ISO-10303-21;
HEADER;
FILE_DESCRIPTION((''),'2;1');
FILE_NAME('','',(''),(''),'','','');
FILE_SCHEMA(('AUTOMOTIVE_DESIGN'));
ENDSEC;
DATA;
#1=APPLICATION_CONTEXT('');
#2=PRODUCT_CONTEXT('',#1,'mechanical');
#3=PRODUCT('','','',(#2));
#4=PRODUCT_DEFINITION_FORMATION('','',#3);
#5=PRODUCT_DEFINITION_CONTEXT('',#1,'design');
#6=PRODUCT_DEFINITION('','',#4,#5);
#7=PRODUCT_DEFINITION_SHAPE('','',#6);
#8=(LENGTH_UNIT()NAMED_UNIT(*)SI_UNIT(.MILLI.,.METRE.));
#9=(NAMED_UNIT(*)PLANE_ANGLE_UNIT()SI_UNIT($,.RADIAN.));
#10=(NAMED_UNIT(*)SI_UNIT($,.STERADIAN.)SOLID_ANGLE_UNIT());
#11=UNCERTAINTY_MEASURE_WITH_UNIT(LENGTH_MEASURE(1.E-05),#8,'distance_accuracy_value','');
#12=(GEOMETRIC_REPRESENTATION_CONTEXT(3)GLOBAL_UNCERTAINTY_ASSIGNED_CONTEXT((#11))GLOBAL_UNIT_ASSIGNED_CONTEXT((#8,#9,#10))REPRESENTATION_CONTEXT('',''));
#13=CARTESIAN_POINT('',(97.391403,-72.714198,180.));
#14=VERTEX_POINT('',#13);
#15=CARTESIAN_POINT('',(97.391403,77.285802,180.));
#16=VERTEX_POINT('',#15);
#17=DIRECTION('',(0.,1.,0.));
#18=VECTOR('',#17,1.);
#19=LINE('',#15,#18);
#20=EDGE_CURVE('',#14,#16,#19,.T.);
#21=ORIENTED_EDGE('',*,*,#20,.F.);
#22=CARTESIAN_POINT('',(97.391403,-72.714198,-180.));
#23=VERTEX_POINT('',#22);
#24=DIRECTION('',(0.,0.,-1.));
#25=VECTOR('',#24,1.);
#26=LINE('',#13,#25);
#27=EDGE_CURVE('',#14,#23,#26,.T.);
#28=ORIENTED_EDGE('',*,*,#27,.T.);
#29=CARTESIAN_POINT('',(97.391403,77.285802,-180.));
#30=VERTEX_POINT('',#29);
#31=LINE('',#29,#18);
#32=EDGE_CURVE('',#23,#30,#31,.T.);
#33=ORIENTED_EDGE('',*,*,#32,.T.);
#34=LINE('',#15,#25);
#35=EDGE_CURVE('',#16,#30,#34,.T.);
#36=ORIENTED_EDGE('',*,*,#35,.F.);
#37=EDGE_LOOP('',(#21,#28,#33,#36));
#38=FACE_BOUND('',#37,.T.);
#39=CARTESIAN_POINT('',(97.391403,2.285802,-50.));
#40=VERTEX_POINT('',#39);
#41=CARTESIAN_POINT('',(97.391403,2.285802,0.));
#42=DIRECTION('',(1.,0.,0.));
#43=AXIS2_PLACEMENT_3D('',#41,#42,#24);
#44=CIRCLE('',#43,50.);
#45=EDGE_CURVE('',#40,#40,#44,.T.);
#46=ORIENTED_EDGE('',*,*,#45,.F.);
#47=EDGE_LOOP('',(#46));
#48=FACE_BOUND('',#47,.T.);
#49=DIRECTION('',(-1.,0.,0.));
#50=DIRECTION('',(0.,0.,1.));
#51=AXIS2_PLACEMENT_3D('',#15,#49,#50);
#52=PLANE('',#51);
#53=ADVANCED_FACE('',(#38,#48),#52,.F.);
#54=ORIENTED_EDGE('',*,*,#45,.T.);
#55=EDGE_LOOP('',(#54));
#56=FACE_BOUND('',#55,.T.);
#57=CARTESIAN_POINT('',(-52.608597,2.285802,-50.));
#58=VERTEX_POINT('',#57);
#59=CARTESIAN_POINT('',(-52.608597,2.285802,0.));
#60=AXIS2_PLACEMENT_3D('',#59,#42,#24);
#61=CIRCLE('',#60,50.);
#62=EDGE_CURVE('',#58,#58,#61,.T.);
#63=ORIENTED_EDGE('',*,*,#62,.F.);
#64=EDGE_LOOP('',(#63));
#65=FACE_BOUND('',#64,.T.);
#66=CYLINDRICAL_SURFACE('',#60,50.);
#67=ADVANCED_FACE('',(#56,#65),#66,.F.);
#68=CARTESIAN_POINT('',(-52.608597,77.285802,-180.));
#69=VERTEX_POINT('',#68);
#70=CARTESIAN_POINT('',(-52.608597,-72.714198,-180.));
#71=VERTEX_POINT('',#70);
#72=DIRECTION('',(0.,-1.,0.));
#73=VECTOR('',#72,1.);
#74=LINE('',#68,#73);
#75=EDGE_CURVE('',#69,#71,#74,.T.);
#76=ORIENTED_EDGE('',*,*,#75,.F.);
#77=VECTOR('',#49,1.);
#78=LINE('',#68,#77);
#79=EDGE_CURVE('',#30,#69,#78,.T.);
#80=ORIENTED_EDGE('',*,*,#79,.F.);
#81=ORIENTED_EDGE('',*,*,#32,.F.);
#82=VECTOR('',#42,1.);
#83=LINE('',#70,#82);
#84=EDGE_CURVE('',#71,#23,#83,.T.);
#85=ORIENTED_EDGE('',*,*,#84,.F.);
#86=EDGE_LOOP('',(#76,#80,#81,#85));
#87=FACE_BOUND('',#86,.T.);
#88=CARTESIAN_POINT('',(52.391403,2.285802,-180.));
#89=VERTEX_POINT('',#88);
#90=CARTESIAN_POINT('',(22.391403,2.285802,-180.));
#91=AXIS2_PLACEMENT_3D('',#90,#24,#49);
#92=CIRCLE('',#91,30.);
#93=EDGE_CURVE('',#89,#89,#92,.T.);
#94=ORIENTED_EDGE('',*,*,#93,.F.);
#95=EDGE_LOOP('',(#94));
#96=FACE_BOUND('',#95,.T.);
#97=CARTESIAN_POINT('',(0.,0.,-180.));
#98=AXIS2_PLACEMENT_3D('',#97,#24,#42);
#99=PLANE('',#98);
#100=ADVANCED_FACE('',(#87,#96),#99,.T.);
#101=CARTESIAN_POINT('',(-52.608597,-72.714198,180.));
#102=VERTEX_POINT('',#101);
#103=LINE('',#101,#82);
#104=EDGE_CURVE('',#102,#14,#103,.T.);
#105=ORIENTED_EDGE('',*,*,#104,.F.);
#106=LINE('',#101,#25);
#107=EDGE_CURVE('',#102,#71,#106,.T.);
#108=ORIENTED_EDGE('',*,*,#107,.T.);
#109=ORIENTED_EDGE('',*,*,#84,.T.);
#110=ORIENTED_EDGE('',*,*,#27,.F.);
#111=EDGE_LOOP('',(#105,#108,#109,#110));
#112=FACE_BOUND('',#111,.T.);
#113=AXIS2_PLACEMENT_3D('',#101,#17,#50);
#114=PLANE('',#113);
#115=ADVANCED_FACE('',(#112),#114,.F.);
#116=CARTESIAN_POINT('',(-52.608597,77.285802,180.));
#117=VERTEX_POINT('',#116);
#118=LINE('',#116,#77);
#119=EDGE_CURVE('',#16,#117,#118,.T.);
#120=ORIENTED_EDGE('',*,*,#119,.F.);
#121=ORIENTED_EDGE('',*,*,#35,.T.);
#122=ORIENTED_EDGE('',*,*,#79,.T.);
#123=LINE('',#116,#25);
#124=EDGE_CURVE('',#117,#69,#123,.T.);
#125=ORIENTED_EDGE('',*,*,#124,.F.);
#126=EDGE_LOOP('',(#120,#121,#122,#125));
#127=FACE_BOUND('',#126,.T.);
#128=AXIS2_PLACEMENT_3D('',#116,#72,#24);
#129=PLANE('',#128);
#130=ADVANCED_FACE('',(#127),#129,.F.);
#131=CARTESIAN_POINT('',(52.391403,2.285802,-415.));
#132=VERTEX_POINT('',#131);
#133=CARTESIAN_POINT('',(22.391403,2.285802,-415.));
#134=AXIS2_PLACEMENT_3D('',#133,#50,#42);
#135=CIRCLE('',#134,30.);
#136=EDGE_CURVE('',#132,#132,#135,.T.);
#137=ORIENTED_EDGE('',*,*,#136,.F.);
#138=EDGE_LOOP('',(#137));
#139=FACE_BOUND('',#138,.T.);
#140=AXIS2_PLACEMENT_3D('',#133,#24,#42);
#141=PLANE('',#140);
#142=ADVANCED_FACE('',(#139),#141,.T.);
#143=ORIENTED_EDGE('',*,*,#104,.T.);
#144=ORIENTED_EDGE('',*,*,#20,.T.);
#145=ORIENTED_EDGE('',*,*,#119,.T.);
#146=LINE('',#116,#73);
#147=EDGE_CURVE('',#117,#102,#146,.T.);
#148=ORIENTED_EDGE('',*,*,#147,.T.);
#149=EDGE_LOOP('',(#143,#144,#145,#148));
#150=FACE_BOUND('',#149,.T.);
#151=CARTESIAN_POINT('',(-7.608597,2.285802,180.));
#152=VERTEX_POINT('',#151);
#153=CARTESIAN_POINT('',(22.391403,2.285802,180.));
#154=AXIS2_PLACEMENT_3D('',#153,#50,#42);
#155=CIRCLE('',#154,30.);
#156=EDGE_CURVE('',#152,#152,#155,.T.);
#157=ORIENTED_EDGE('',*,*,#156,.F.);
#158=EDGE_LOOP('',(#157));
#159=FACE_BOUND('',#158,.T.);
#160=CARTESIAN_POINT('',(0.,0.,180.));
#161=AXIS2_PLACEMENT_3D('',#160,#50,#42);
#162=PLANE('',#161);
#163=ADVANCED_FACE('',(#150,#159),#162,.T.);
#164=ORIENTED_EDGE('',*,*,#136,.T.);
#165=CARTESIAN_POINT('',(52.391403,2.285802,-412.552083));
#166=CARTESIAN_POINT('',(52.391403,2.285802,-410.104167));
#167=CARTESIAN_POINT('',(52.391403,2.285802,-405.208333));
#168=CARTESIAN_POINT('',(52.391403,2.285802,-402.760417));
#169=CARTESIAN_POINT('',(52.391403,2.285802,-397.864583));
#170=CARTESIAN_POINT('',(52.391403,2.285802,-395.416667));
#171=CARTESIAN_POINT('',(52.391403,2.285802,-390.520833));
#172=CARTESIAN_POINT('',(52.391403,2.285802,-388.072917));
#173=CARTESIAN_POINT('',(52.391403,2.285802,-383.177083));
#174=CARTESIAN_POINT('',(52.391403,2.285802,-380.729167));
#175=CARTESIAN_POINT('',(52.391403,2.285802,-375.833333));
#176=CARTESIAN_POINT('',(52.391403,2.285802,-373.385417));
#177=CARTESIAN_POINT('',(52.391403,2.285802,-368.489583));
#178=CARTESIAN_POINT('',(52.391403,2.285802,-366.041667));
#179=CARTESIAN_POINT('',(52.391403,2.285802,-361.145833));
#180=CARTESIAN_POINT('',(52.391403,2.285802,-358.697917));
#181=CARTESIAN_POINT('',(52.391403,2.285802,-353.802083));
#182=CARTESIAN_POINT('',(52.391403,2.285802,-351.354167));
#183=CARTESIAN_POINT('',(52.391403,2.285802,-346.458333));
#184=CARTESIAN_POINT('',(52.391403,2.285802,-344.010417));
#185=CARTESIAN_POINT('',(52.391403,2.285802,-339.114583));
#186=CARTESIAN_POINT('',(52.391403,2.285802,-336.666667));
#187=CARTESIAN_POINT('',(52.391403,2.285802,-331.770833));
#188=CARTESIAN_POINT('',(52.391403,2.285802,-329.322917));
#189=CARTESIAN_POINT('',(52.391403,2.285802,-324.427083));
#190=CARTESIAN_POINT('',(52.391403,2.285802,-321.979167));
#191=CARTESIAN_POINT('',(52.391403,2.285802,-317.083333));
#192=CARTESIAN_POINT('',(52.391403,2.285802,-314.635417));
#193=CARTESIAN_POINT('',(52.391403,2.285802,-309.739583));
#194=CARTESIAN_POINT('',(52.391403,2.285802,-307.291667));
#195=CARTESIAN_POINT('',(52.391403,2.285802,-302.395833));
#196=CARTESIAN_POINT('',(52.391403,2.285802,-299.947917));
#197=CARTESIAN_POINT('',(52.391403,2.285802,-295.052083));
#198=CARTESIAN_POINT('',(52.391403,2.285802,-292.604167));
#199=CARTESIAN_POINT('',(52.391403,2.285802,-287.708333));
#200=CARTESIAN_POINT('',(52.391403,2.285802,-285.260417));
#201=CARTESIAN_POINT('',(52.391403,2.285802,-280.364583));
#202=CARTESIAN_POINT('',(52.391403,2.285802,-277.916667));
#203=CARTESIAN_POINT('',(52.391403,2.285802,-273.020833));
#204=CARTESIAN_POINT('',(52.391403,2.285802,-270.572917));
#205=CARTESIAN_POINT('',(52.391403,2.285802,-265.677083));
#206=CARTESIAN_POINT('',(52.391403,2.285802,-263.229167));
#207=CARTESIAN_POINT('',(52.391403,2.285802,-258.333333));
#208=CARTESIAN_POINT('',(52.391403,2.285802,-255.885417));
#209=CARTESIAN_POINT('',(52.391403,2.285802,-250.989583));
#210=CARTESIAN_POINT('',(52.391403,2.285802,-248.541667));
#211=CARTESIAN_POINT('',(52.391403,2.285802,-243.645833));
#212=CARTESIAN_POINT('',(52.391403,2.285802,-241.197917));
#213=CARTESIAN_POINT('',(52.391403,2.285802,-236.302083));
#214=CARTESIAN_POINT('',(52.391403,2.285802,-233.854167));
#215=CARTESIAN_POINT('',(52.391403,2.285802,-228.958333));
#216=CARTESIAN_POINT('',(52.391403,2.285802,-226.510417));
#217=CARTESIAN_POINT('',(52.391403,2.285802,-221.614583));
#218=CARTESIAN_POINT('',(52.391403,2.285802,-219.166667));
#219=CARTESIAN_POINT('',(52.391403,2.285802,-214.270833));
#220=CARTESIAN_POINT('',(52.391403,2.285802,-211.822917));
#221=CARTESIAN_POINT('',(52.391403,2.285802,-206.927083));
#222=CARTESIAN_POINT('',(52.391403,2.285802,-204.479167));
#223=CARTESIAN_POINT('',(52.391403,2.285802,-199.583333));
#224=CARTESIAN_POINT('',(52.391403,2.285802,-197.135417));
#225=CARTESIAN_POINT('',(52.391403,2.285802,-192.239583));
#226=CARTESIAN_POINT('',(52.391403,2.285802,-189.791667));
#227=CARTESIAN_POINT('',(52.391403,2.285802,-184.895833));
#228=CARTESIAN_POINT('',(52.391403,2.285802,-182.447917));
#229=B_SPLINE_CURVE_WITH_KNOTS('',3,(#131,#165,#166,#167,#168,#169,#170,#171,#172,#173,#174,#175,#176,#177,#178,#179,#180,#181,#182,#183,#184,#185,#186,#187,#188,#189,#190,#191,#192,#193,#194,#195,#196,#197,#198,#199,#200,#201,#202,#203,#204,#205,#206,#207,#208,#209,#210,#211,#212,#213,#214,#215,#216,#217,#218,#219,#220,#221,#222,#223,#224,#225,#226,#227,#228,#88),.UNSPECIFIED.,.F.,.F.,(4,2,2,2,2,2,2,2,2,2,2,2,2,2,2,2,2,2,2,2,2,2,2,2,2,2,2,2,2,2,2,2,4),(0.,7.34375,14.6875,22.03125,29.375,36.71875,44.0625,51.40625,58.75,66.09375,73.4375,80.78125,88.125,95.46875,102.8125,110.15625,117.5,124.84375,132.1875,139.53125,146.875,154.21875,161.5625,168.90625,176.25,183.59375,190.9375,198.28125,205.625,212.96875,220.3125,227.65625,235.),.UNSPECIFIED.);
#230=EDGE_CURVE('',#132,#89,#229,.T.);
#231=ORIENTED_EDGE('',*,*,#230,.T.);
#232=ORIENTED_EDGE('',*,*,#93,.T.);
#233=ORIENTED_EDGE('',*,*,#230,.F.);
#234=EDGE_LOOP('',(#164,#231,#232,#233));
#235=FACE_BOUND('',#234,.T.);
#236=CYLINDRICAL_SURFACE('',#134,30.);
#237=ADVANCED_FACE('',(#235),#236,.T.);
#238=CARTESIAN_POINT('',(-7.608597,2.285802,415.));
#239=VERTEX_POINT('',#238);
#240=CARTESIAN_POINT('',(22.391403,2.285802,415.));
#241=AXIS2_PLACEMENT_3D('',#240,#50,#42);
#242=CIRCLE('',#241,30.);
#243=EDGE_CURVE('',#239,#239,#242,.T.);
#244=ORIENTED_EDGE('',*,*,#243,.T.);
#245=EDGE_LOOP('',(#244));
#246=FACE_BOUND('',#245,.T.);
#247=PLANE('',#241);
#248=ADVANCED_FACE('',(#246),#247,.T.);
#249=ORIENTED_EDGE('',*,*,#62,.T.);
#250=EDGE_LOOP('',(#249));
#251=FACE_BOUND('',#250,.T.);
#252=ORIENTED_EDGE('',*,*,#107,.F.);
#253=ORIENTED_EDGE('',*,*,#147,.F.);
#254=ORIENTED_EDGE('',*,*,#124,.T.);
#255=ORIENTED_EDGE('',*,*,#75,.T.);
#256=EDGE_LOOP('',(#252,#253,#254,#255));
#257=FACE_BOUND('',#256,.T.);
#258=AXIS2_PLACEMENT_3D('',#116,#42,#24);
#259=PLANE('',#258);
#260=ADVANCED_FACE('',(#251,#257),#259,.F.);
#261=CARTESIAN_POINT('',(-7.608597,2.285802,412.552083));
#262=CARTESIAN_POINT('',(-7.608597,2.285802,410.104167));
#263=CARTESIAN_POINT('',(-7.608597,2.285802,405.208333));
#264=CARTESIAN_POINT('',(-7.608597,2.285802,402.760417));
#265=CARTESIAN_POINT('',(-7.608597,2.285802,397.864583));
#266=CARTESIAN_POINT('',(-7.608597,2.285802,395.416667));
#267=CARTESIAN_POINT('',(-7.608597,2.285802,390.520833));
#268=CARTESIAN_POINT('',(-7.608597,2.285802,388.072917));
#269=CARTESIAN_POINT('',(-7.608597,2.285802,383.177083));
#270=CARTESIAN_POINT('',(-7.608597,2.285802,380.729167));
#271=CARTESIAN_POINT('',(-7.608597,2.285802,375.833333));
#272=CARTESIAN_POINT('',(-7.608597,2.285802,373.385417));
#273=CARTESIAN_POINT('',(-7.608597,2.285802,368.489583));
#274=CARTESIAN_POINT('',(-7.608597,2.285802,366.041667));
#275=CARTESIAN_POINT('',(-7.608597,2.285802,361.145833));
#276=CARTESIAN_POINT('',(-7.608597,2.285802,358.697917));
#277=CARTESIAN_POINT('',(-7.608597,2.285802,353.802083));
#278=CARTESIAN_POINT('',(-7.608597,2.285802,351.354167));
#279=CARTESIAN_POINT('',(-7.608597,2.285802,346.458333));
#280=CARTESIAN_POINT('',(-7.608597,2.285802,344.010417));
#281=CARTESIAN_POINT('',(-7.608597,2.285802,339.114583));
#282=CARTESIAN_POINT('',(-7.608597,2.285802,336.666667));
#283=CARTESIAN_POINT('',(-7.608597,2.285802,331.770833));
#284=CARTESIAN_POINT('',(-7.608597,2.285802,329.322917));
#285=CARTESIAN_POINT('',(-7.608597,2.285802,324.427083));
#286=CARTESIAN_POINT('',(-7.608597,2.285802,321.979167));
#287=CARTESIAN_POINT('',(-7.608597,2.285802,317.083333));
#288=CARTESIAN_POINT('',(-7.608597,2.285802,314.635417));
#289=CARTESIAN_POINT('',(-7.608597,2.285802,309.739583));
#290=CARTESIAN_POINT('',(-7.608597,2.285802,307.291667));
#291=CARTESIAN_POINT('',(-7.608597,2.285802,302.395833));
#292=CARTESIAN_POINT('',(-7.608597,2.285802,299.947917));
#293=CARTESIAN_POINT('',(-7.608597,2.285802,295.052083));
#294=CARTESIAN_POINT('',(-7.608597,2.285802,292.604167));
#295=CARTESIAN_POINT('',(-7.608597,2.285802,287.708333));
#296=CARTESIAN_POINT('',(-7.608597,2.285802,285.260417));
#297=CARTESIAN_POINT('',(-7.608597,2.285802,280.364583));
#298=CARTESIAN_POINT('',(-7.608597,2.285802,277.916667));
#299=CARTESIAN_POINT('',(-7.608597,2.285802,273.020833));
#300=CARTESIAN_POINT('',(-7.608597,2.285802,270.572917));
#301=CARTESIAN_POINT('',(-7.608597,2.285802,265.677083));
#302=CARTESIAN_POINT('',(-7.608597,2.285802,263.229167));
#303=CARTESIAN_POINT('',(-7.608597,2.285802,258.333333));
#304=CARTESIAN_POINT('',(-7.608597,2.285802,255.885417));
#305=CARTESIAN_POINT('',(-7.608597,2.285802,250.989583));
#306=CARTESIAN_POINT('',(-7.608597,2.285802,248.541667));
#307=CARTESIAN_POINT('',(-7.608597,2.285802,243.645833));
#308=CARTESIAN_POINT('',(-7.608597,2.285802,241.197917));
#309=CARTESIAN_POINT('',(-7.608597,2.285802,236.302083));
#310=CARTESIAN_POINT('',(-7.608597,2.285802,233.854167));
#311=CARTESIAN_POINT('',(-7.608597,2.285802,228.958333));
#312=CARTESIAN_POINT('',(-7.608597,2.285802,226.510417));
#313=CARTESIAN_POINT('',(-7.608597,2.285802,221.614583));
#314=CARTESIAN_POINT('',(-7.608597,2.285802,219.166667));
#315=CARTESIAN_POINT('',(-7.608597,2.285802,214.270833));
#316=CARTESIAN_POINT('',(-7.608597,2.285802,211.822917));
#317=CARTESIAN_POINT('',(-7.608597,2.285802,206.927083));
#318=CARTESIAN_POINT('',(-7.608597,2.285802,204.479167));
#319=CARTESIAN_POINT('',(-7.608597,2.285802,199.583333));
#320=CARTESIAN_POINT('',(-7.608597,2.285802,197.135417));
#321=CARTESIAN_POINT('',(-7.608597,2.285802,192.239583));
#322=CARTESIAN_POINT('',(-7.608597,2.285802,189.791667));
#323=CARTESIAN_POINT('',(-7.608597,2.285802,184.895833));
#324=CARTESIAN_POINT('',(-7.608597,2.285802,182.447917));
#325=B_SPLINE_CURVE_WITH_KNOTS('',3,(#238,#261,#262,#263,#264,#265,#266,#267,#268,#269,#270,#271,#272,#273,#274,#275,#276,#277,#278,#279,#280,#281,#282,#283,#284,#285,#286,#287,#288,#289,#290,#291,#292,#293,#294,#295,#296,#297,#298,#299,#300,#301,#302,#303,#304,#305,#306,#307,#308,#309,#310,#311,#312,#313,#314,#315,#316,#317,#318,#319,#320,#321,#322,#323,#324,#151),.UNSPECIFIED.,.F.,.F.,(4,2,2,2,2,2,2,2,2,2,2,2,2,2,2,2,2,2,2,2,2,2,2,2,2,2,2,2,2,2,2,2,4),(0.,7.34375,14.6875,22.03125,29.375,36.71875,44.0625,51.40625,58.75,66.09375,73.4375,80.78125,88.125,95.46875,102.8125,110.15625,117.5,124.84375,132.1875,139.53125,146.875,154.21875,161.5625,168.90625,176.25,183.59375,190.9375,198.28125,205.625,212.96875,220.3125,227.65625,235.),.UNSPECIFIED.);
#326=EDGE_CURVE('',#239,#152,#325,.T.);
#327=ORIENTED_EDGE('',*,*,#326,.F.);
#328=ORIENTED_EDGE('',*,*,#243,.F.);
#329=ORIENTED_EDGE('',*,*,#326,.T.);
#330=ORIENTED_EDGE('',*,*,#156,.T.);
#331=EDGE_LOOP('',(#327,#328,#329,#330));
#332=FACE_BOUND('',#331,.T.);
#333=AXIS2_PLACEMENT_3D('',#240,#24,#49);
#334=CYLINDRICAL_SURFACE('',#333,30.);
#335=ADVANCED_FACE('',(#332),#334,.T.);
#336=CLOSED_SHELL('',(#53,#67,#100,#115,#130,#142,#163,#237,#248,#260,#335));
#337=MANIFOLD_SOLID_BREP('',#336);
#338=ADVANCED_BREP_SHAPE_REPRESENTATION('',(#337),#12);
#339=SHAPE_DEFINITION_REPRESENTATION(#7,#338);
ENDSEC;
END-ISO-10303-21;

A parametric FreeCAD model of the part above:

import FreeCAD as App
import Part
import Sketcher
from FreeCAD import Vector


def add_polygon(sketch, points):
    """Adds a closed chain of lines whose ends are joined by coincident constraints."""
    first, n = sketch.GeometryCount, len(points)
    for a, b in zip(points, points[1:] + points[:1]):
        sketch.addGeometry(Part.LineSegment(App.Vector(*a, 0), App.Vector(*b, 0)), False)
    for i in range(n):
        sketch.addConstraint(Sketcher.Constraint("Coincident", first + i, 2, first + (i + 1) % n, 1))

doc = App.newDocument("Part")
params = doc.addObject("Spreadsheet::Sheet", "Params")
for row, (alias, value) in enumerate([
    ("sketch1_width", "150 mm"),
    ("pad1_length", "180 mm"),
    ("sketch2_diameter", "60 mm"),
    ("pad2_length", "235 mm"),
    ("sketch3_diameter", "100 mm"),
], start=1):
    params.set(f"A{row}", alias)
    params.set(f"B{row}", "=" + value)
    params.setAlias(f"B{row}", alias)

body = doc.addObject("PartDesign::Body", "Body")

sketch1 = doc.addObject("Sketcher::SketchObject", "Sketch")
body.addObject(sketch1)
sketch1.AttachmentSupport = (doc.XY_Plane, [""])
sketch1.MapMode = "FlatFace"
add_polygon(sketch1, [(-52.608597, 77.285802), (-52.608597, -72.714198), (97.391403, -72.714198), (97.391403, 77.285802)])
sketch1.addConstraint(Sketcher.Constraint("Vertical", 0))
sketch1.addConstraint(Sketcher.Constraint("Horizontal", 1))
sketch1.addConstraint(Sketcher.Constraint("Vertical", 2))
sketch1.addConstraint(Sketcher.Constraint("Horizontal", 3))
sketch1.addConstraint(Sketcher.Constraint("Equal", 3, 0))
sketch1.addConstraint(Sketcher.Constraint("DistanceX", 1, 1, 1, 2, 150.0))
sketch1.addConstraint(Sketcher.Constraint("DistanceX", 0, 2, -1, 1, 52.608597))
sketch1.addConstraint(Sketcher.Constraint("DistanceY", 0, 2, -1, 1, 72.714198))
sketch1.setExpression("Constraints[9]", "Params.sketch1_width")
pad1 = doc.addObject("PartDesign::Pad", "Pad")
body.addObject(pad1)
pad1.Profile = sketch1
pad1.setExpression("Length", "Params.pad1_length")

sketch2 = doc.addObject("Sketcher::SketchObject", "Sketch001")
body.addObject(sketch2)
sketch2.AttachmentSupport = (doc.XY_Plane, [""])
sketch2.MapMode = "FlatFace"
sketch2.AttachmentOffset = App.Placement(Vector(0, 0, 180), App.Rotation())
sketch2.addGeometry(Part.Circle(Vector(22.391403, 2.285802, 0), Vector(0, 0, 1), 30), False)
sketch2.addConstraint(Sketcher.Constraint("Diameter", 0, 60.0))
sketch2.addConstraint(Sketcher.Constraint("DistanceX", -1, 1, 0, 3, 22.391403))
sketch2.addConstraint(Sketcher.Constraint("DistanceY", -1, 1, 0, 3, 2.285802))
sketch2.setExpression("Constraints[0]", "Params.sketch2_diameter")
pad2 = doc.addObject("PartDesign::Pad", "Pad001")
body.addObject(pad2)
pad2.Profile = sketch2
pad2.setExpression("Length", "Params.pad2_length")
doc.recompute()

mirrored = doc.addObject("PartDesign::Mirrored", "Mirrored")
body.addObject(mirrored)
mirrored.Originals = [pad1, pad2]
mirrored.MirrorPlane = (doc.XY_Plane, [""])
body.Tip = mirrored

sketch3 = doc.addObject("Sketcher::SketchObject", "Sketch002")
body.addObject(sketch3)
sketch3.AttachmentSupport = (doc.YZ_Plane, [""])
sketch3.MapMode = "FlatFace"
sketch3.AttachmentOffset = App.Placement(Vector(0, 0, 97.391403), App.Rotation())
sketch3.addGeometry(Part.Circle(Vector(2.285802, 0, 0), Vector(0, 0, 1), 50), False)
sketch3.addConstraint(Sketcher.Constraint("PointOnObject", 0, 3, -1))
sketch3.addConstraint(Sketcher.Constraint("Diameter", 0, 100.0))
sketch3.addConstraint(Sketcher.Constraint("DistanceX", -1, 1, 0, 3, 2.285802))
sketch3.setExpression("Constraints[1]", "Params.sketch3_diameter")
pocket1 = doc.addObject("PartDesign::Pocket", "Pocket")
body.addObject(pocket1)
pocket1.Profile = sketch3
pocket1.Type = "ThroughAll"

doc.recompute()
